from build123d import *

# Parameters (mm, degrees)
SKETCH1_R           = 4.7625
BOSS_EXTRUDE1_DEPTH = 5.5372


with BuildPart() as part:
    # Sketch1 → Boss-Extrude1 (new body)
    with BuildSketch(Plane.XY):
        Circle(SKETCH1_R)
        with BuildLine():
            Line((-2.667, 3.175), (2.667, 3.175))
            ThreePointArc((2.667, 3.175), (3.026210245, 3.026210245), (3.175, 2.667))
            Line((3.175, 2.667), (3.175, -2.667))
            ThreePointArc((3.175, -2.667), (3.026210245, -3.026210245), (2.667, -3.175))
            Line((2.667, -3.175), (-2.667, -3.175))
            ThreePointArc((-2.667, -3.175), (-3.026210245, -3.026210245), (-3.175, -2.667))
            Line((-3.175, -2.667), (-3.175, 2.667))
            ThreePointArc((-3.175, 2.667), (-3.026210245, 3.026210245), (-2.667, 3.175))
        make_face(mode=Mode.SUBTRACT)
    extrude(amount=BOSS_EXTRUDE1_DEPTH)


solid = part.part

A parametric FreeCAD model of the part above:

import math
import FreeCAD as App
import Part
import Sketcher
Q = App.Units.Quantity

doc = App.newDocument("Part")
body = doc.addObject("PartDesign::Body", "Body")

# Sketch on XY plane
sketch1 = doc.addObject("Sketcher::SketchObject", "Sketch")
body.addObject(sketch1)
sketch1.AttachmentSupport = (doc.XY_Plane, [""])
sketch1.MapMode = "FlatFace"
sketch1.addGeometry([
    Part.Circle(App.Vector(0, 0, 0), App.Vector(0, 0, 1), 4.8),  # 0
    Part.ArcOfCircle(Part.Circle(App.Vector(-2.7, 2.7, 0), App.Vector(0, 0, 1), 0.5), math.radians(90), math.radians(180)),  # 1
    Part.LineSegment(App.Vector(-2.7, 3.2, 0), App.Vector(2.7, 3.2, 0)),  # 2
    Part.ArcOfCircle(Part.Circle(App.Vector(2.7, 2.7, 0), App.Vector(0, 0, 1), 0.5), math.radians(0), math.radians(90)),  # 3
    Part.LineSegment(App.Vector(3.2, 2.7, 0), App.Vector(3.2, -2.7, 0)),  # 4
    Part.ArcOfCircle(Part.Circle(App.Vector(2.7, -2.7, 0), App.Vector(0, 0, 1), 0.5), math.radians(-90), math.radians(0)),  # 5
    Part.LineSegment(App.Vector(2.7, -3.2, 0), App.Vector(-2.7, -3.2, 0)),  # 6
    Part.ArcOfCircle(Part.Circle(App.Vector(-2.7, -2.7, 0), App.Vector(0, 0, 1), 0.5), math.radians(180), math.radians(270)),  # 7
    Part.LineSegment(App.Vector(-3.2, -2.7, 0), App.Vector(-3.2, 2.7, 0)),  # 8
], False)
sketch1.addConstraint([
    Sketcher.Constraint("Tangent", 1, 1, 2, 1),
    Sketcher.Constraint("Tangent", 2, 2, 3, 2),
    Sketcher.Constraint("Tangent", 3, 1, 4, 1),
    Sketcher.Constraint("Tangent", 4, 2, 5, 2),
    Sketcher.Constraint("Tangent", 5, 1, 6, 1),
    Sketcher.Constraint("Tangent", 6, 2, 7, 2),
    Sketcher.Constraint("Tangent", 7, 1, 8, 1),
    Sketcher.Constraint("Tangent", 8, 2, 1, 2),
    Sketcher.Constraint("Horizontal", 2),
    Sketcher.Constraint("Vertical", 4),
    Sketcher.Constraint("Horizontal", 6),
    Sketcher.Constraint("Vertical", 8),
    Sketcher.Constraint("Coincident", 0, 3, -1, 1),
    Sketcher.Constraint("Equal", 1, 3),
    Sketcher.Constraint("Equal", 3, 5),
    Sketcher.Constraint("Equal", 5, 7),
    Sketcher.Constraint("Symmetric", 1, 3, 5, 3, -1, 1),
    Sketcher.Constraint("Equal", 6, 4),
    Sketcher.Constraint("Radius", 1, Q("0.02 in")),
    Sketcher.Constraint("Diameter", 0, Q("0.375 in")),
    Sketcher.Constraint("DistanceX", 2, 1, 2, 2, Q("0.21 in")),
])
pad1 = doc.addObject("PartDesign::Pad", "Pad")
body.addObject(pad1)
pad1.Profile = sketch1
pad1.Length = Q("0.218 in")

doc.recompute()
